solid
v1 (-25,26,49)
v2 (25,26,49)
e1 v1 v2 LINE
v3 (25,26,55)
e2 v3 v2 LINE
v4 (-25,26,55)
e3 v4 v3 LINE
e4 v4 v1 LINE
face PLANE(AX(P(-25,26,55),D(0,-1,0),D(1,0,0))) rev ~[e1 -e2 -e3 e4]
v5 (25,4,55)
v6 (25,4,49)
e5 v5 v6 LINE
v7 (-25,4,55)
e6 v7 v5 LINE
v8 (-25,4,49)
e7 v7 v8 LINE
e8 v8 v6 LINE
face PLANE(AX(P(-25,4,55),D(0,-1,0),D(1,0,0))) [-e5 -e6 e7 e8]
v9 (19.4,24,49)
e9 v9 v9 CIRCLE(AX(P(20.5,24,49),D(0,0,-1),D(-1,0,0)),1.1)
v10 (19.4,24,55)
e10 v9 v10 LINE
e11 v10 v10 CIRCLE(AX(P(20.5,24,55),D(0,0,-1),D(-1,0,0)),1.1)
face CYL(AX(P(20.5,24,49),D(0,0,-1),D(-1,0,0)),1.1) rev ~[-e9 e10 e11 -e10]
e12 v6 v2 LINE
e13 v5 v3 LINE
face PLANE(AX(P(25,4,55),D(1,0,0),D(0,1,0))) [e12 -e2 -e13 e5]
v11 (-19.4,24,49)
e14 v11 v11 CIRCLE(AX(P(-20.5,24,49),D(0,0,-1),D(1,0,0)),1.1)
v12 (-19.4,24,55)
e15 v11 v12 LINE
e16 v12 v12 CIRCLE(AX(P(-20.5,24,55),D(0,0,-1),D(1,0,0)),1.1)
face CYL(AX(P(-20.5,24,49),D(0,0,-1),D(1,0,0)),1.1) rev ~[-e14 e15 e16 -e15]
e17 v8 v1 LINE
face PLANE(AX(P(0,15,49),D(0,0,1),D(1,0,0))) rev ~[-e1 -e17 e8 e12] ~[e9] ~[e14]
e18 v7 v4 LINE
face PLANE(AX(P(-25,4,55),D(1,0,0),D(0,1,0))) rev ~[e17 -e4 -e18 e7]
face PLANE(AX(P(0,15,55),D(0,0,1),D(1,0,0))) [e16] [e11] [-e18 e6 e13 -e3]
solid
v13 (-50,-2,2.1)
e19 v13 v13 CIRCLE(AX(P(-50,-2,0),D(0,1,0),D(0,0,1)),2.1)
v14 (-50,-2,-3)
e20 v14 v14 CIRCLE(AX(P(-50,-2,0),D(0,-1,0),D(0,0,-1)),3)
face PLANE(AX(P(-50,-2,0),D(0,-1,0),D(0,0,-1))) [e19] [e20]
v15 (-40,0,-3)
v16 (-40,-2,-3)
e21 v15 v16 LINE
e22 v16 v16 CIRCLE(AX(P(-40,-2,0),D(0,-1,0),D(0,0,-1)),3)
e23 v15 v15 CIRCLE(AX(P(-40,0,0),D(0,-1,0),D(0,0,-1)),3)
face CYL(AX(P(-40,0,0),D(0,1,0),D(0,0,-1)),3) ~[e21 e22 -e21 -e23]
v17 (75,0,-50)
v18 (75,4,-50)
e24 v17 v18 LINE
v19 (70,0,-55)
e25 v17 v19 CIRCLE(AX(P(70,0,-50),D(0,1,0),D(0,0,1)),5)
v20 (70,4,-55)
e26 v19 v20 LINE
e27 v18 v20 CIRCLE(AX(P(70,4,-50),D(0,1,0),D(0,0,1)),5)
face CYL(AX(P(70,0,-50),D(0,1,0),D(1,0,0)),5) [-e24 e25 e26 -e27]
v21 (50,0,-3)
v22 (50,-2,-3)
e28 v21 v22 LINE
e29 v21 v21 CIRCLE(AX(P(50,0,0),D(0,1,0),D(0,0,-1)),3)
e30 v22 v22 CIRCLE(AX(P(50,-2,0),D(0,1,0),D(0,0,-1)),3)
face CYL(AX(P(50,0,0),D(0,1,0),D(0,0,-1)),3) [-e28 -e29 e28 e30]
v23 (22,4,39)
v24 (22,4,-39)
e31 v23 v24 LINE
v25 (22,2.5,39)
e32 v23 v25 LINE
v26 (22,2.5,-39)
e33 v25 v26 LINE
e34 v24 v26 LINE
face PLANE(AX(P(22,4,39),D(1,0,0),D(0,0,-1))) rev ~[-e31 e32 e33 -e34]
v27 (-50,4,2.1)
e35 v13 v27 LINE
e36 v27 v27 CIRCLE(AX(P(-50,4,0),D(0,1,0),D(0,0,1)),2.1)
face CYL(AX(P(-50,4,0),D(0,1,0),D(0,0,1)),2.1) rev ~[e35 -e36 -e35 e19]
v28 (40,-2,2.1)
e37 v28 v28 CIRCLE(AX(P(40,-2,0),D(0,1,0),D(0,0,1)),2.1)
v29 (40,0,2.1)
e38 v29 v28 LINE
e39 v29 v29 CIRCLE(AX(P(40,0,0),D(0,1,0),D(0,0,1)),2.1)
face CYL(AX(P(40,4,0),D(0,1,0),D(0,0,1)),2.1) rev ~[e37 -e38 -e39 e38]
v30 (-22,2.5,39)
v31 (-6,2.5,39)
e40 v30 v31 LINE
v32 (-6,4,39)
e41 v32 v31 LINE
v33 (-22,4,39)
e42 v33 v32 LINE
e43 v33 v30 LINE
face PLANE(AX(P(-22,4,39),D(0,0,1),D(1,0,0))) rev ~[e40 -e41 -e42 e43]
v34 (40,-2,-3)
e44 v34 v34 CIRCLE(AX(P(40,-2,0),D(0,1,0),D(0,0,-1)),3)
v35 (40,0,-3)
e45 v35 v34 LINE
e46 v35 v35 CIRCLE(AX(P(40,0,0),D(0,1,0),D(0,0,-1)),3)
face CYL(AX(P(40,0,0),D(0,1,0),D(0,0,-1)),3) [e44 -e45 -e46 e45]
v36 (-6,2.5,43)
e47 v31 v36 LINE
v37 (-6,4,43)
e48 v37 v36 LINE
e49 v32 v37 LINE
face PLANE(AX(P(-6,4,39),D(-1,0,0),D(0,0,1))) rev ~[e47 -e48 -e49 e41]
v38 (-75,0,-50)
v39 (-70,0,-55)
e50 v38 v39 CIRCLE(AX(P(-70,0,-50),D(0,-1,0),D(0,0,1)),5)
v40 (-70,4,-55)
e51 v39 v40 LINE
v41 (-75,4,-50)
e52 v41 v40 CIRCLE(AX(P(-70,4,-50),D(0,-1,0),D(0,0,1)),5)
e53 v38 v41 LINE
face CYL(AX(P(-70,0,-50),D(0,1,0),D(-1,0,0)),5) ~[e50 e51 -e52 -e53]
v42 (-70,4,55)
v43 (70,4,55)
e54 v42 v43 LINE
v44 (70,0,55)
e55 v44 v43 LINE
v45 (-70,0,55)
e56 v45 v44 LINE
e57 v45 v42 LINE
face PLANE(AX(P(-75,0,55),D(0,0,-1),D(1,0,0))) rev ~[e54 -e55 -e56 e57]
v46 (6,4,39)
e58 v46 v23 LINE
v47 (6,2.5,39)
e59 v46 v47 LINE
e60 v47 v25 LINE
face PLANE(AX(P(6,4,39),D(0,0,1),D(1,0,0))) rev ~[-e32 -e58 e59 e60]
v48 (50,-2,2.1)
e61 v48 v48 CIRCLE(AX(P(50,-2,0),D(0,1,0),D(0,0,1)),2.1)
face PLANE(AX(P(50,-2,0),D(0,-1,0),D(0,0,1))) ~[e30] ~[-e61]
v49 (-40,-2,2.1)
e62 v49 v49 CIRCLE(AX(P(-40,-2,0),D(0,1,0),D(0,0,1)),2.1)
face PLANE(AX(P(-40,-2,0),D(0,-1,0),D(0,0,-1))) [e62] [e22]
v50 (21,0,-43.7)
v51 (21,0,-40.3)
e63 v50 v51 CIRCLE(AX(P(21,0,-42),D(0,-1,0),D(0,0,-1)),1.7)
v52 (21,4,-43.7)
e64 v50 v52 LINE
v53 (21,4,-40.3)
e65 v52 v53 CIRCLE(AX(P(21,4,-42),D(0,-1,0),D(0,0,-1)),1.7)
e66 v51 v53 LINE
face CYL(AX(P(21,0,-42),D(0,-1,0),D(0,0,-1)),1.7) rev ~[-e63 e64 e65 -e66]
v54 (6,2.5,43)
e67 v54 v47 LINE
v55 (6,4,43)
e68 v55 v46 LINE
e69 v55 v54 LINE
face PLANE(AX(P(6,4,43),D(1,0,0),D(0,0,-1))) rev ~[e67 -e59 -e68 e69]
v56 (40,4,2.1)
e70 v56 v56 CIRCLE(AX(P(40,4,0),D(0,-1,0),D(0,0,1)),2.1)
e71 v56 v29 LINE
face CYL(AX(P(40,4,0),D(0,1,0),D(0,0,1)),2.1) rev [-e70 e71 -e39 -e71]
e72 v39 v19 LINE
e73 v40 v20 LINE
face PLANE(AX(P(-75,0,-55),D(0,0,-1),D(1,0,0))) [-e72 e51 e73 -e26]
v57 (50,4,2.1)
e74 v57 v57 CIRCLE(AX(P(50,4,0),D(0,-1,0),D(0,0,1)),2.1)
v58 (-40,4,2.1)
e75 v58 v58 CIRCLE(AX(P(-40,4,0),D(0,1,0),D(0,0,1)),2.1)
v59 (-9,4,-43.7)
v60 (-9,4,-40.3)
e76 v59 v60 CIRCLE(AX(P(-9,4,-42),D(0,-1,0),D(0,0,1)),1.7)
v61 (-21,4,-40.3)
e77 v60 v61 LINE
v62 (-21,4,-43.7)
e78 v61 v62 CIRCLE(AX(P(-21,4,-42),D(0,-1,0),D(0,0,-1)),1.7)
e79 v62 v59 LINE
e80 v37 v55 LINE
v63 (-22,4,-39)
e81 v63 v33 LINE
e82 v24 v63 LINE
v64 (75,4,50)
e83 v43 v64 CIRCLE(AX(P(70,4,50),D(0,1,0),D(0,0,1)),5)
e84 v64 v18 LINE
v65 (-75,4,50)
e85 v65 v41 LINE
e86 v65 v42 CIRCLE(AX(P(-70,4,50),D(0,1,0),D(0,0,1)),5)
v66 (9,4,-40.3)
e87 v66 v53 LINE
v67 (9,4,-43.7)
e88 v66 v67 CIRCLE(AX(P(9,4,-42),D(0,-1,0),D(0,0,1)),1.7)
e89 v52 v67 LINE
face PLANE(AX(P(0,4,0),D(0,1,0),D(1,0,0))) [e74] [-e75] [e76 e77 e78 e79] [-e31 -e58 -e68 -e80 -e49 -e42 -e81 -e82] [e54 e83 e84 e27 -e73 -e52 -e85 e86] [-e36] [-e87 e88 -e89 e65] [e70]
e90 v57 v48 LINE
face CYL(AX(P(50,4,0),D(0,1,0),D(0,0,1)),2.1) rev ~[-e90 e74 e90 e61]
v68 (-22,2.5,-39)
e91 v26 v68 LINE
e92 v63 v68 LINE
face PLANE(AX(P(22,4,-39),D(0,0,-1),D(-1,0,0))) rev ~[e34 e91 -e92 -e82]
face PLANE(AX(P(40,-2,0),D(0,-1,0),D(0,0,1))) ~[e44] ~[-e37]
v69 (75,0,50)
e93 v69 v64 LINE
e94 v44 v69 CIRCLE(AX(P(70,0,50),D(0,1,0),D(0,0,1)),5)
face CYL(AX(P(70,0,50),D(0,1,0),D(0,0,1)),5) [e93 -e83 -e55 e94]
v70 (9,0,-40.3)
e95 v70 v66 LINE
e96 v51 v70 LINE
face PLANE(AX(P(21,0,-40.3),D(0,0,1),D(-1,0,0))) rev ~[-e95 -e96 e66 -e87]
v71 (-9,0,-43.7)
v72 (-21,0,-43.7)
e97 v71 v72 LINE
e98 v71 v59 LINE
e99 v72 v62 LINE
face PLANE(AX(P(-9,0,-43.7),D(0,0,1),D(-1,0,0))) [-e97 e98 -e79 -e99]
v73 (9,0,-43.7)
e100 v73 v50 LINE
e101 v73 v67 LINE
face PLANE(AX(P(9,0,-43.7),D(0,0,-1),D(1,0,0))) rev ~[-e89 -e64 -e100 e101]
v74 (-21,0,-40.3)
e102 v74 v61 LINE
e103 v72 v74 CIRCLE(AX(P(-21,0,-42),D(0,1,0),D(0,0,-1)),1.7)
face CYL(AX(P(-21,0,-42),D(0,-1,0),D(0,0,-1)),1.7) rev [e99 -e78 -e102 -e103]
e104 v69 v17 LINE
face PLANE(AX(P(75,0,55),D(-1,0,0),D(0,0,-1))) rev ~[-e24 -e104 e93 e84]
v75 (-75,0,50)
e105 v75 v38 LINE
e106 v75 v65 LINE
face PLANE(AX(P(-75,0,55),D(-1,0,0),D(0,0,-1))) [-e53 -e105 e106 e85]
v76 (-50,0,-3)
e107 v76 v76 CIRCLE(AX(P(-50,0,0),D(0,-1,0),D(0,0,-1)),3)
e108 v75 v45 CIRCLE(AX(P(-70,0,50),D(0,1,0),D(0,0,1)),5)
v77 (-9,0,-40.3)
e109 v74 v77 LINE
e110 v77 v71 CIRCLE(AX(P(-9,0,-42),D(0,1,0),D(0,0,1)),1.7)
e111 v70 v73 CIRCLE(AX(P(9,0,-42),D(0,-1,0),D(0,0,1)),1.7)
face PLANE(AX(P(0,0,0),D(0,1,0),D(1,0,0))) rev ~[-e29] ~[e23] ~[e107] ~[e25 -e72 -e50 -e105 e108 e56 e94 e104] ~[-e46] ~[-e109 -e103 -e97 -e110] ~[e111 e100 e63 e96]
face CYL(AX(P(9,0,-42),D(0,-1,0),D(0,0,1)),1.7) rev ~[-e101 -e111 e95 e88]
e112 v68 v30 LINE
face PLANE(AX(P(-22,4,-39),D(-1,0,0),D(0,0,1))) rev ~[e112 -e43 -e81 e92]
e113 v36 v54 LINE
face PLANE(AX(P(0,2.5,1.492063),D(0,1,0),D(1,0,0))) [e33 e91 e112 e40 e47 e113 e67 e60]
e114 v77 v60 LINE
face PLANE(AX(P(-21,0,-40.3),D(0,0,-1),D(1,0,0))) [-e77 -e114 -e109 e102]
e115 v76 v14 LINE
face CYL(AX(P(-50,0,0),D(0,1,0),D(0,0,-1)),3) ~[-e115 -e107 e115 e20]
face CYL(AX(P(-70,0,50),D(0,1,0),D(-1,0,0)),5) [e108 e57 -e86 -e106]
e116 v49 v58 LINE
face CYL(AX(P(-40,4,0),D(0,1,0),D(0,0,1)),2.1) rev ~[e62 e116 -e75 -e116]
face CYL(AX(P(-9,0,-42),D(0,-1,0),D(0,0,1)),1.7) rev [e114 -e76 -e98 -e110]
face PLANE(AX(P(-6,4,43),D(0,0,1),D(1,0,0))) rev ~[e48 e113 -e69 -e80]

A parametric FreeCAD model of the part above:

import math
import FreeCAD as App
import Part
import Sketcher
Q = App.Units.Quantity


def edges_at(feature, points):
    """Names of the edges that pass closest to the given points."""
    edges = feature.Shape.Edges
    near = lambda p: min(range(len(edges)), key=lambda i: edges[i].distToShape(Part.Vertex(*p))[0])
    return sorted({f"Edge{near(p) + 1}" for p in points})

doc = App.newDocument("Part")
body = doc.addObject("PartDesign::Body", "Body")

# Sketch on XZ plane
sketch1 = body.newObject("Sketcher::SketchObject", "Sketch")
sketch1.AttachmentSupport = (doc.getObject("XZ_Plane"), [""])
sketch1.MapMode = "FlatFace"
sketch1.addGeometry([
    Part.LineSegment(App.Vector(-75, -55, 0), App.Vector(-75, 55, 0)),
    Part.LineSegment(App.Vector(-75, 55, 0), App.Vector(75, 55, 0)),
    Part.LineSegment(App.Vector(75, 55, 0), App.Vector(75, -55, 0)),
    Part.LineSegment(App.Vector(75, -55, 0), App.Vector(-75, -55, 0)),
], False)
sketch1.addConstraint([
    Sketcher.Constraint("Coincident", 0, 2, 1, 1),
    Sketcher.Constraint("Coincident", 1, 2, 2, 1),
    Sketcher.Constraint("Coincident", 2, 2, 3, 1),
    Sketcher.Constraint("Coincident", 3, 2, 0, 1),
    Sketcher.Constraint("Vertical", 0),
    Sketcher.Constraint("Horizontal", 1),
    Sketcher.Constraint("Vertical", 2),
    Sketcher.Constraint("Horizontal", 3),
    Sketcher.Constraint("Symmetric", 0, 2, 2, 2, -1, 1),
    Sketcher.Constraint("DistanceX", 1, 1, 1, 2, Q("150 mm")),
    Sketcher.Constraint("DistanceY", 0, 1, 0, 2, Q("110 mm")),
])
pad1 = body.newObject("PartDesign::Pad", "Pad")
pad1.Profile = sketch1
pad1.Length = 4
pad1.Reversed = True
doc.recompute()

fillet = body.newObject("PartDesign::Fillet", "Fillet")
fillet.Base = (pad1, edges_at(pad1, [
    (75, 2, 55),
    (-75, 2, 55),
    (-75, 2, -55),
    (75, 2, -55),
]))
fillet.Radius = 5

# Sketch on XZ plane
sketch2 = body.newObject("Sketcher::SketchObject", "Sketch001")
sketch2.AttachmentSupport = (doc.getObject("XZ_Plane"), [""])
sketch2.MapMode = "FlatFace"
sketch2.AttachmentOffset = App.Placement(App.Vector(0, 0, -4), App.Rotation())
sketch2.addGeometry([
    Part.Circle(App.Vector(-50, 0, 0), App.Vector(0, 0, 1), 2.1),
    Part.Circle(App.Vector(-40, 0, 0), App.Vector(0, 0, 1), 2.1),
], False)
sketch2.addConstraint([
    Sketcher.Constraint("Equal", 0, 1),
    Sketcher.Constraint("PointOnObject", 0, 3, -1),
    Sketcher.Constraint("PointOnObject", 1, 3, -1),
    Sketcher.Constraint("Diameter", 0, Q("4.2 mm")),
    Sketcher.Constraint("DistanceX", 0, 3, -1, 1, Q("50 mm")),
    Sketcher.Constraint("DistanceX", 1, 3, -1, 1, Q("40 mm")),
])
pocket1 = body.newObject("PartDesign::Pocket", "Pocket")
pocket1.Profile = sketch2
pocket1.Type = "ThroughAll"
pocket1.Reversed = True

# Sketch on XZ plane
sketch3 = body.newObject("Sketcher::SketchObject", "Sketch002")
sketch3.AttachmentSupport = (doc.getObject("XZ_Plane"), [""])
sketch3.MapMode = "FlatFace"
sketch3.addGeometry([
    Part.Circle(App.Vector(-50, 0, 0), App.Vector(0, 0, 1), 3),
    Part.Circle(App.Vector(-40, 0, 0), App.Vector(0, 0, 1), 3),
], False)
sketch3.addConstraint([
    Sketcher.Constraint("Equal", 0, 1),
    Sketcher.Constraint("PointOnObject", 0, 3, -1),
    Sketcher.Constraint("PointOnObject", 1, 3, -1),
    Sketcher.Constraint("Diameter", 0, Q("6 mm")),
    Sketcher.Constraint("DistanceX", 0, 3, -1, 1, Q("50 mm")),
    Sketcher.Constraint("DistanceX", 1, 3, -1, 1, Q("40 mm")),
])
pad2 = body.newObject("PartDesign::Pad", "Pad001")
pad2.Profile = sketch3
pad2.Length = 2
doc.recompute()

mirrored = body.newObject("PartDesign::Mirrored", "Mirrored")
mirrored.Originals = [pocket1, pad2]
mirrored.MirrorPlane = (doc.getObject("YZ_Plane"), [""])
body.Tip = mirrored

# Sketch on XZ plane
sketch4 = body.newObject("Sketcher::SketchObject", "Sketch003")
sketch4.AttachmentSupport = (doc.getObject("XZ_Plane"), [""])
sketch4.MapMode = "FlatFace"
sketch4.AttachmentOffset = App.Placement(App.Vector(0, 0, -4), App.Rotation())
sketch4.addGeometry([
    Part.LineSegment(App.Vector(-22, 39, 0), App.Vector(-6, 39, 0)),  # 0
    Part.LineSegment(App.Vector(-6, 39, 0), App.Vector(-6, 43, 0)),  # 1
    Part.LineSegment(App.Vector(-6, 43, 0), App.Vector(6, 43, 0)),  # 2
    Part.LineSegment(App.Vector(6, 43, 0), App.Vector(6, 39, 0)),  # 3
    Part.LineSegment(App.Vector(6, 39, 0), App.Vector(22, 39, 0)),  # 4
    Part.LineSegment(App.Vector(22, 39, 0), App.Vector(22, -39, 0)),  # 5
    Part.LineSegment(App.Vector(22, -39, 0), App.Vector(-22, -39, 0)),  # 6
    Part.LineSegment(App.Vector(-22, -39, 0), App.Vector(-22, 39, 0)),  # 7
], False)
sketch4.addConstraint([
    Sketcher.Constraint("Coincident", 0, 2, 1, 1),
    Sketcher.Constraint("Coincident", 1, 2, 2, 1),
    Sketcher.Constraint("Coincident", 2, 2, 3, 1),
    Sketcher.Constraint("Coincident", 3, 2, 4, 1),
    Sketcher.Constraint("Coincident", 4, 2, 5, 1),
    Sketcher.Constraint("Coincident", 5, 2, 6, 1),
    Sketcher.Constraint("Coincident", 6, 2, 7, 1),
    Sketcher.Constraint("Coincident", 7, 2, 0, 1),
    Sketcher.Constraint("Horizontal", 0),
    Sketcher.Constraint("Vertical", 1),
    Sketcher.Constraint("Horizontal", 2),
    Sketcher.Constraint("Vertical", 3),
    Sketcher.Constraint("Horizontal", 4),
    Sketcher.Constraint("Vertical", 5),
    Sketcher.Constraint("Horizontal", 6),
    Sketcher.Constraint("Vertical", 7),
    Sketcher.Constraint("Symmetric", 4, 2, 6, 2, -1, 1),
    Sketcher.Constraint("Symmetric", 0, 2, 3, 2, -2),
    Sketcher.Constraint("DistanceX", 0, 1, 0, 2, Q("16 mm")),
    Sketcher.Constraint("DistanceX", 2, 1, 2, 2, Q("12 mm")),
    Sketcher.Constraint("DistanceY", 1, 1, 1, 2, Q("4 mm")),
    Sketcher.Constraint("DistanceY", 5, 2, 5, 1, Q("78 mm")),
])
pocket2 = body.newObject("PartDesign::Pocket", "Pocket001")
pocket2.Profile = sketch4
pocket2.Length = 1.5
pocket2.Reversed = True

# Sketch on XZ plane
sketch5 = body.newObject("Sketcher::SketchObject", "Sketch004")
sketch5.AttachmentSupport = (doc.getObject("XZ_Plane"), [""])
sketch5.MapMode = "FlatFace"
sketch5.addGeometry([
    Part.LineSegment(App.Vector(-9, -40.3, 0), App.Vector(-21, -40.3, 0)),  # 0
    Part.ArcOfCircle(Part.Circle(App.Vector(-21, -42, 0), App.Vector(0, 0, 1), 1.7), math.radians(90), math.radians(270)),  # 1
    Part.LineSegment(App.Vector(-21, -43.7, 0), App.Vector(-9, -43.7, 0)),  # 2
    Part.ArcOfCircle(Part.Circle(App.Vector(-9, -42, 0), App.Vector(0, 0, 1), 1.7), math.radians(-90), math.radians(90)),  # 3
    Part.LineSegment(App.Vector(21, -40.3, 0), App.Vector(9, -40.3, 0)),  # 4
    Part.ArcOfCircle(Part.Circle(App.Vector(9, -42, 0), App.Vector(0, 0, 1), 1.7), math.radians(90), math.radians(270)),  # 5
    Part.LineSegment(App.Vector(9, -43.7, 0), App.Vector(21, -43.7, 0)),  # 6
    Part.ArcOfCircle(Part.Circle(App.Vector(21, -42, 0), App.Vector(0, 0, 1), 1.7), math.radians(-90), math.radians(90)),  # 7
], False)
sketch5.addConstraint([
    Sketcher.Constraint("Tangent", 0, 2, 1, 1),
    Sketcher.Constraint("Tangent", 1, 2, 2, 1),
    Sketcher.Constraint("Tangent", 2, 2, 3, 1),
    Sketcher.Constraint("Tangent", 3, 2, 0, 1),
    Sketcher.Constraint("Tangent", 4, 2, 5, 1),
    Sketcher.Constraint("Tangent", 5, 2, 6, 1),
    Sketcher.Constraint("Tangent", 6, 2, 7, 1),
    Sketcher.Constraint("Tangent", 7, 2, 4, 1),
    Sketcher.Constraint("Horizontal", 0),
    Sketcher.Constraint("Horizontal", 2),
    Sketcher.Constraint("Horizontal", 4),
    Sketcher.Constraint("Horizontal", 6),
    Sketcher.Constraint("Equal", 3, 5),
    Sketcher.Constraint("Symmetric", 3, 3, 5, 3, -2),
    Sketcher.Constraint("Equal", 2, 4),
    Sketcher.Constraint("Radius", 1, Q("1.7 mm")),
    Sketcher.Constraint("DistanceX", 0, 2, 0, 1, Q("12 mm")),
    Sketcher.Constraint("DistanceX", 1, 3, -1, 1, Q("21 mm")),
    Sketcher.Constraint("DistanceY", 1, 3, -1, 1, Q("42 mm")),
])
pocket3 = body.newObject("PartDesign::Pocket", "Pocket002")
pocket3.Profile = sketch5
pocket3.Type = "ThroughAll"

# Sketch on XZ plane
sketch6 = body.newObject("Sketcher::SketchObject", "Sketch005")
sketch6.AttachmentSupport = (doc.getObject("XZ_Plane"), [""])
sketch6.MapMode = "FlatFace"
sketch6.AttachmentOffset = App.Placement(App.Vector(0, 0, -4), App.Rotation())
sketch6.addGeometry([
    Part.Circle(App.Vector(-50, 0, 0), App.Vector(0, 0, 1), 2.1),
    Part.Circle(App.Vector(-40, 0, 0), App.Vector(0, 0, 1), 2.1),
    Part.Circle(App.Vector(40, 0, 0), App.Vector(0, 0, 1), 2.1),
    Part.Circle(App.Vector(50, 0, 0), App.Vector(0, 0, 1), 2.1),
], False)
sketch6.addConstraint([
    Sketcher.Constraint("Equal", 0, 1),
    Sketcher.Constraint("Equal", 1, 2),
    Sketcher.Constraint("Equal", 2, 3),
    Sketcher.Constraint("Symmetric", 1, 3, 2, 3, -1, 1),
    Sketcher.Constraint("Symmetric", 0, 3, 3, 3, -1, 1),
    Sketcher.Constraint("PointOnObject", 0, 3, -1),
    Sketcher.Constraint("PointOnObject", 1, 3, -1),
    Sketcher.Constraint("Diameter", 0, Q("4.2 mm")),
    Sketcher.Constraint("DistanceX", 0, 3, -1, 1, Q("50 mm")),
    Sketcher.Constraint("DistanceX", 1, 3, -1, 1, Q("40 mm")),
])
pocket4 = body.newObject("PartDesign::Pocket", "Pocket003")
pocket4.Profile = sketch6
pocket4.Type = "ThroughAll"
pocket4.Reversed = True
body2 = doc.addObject("PartDesign::Body", "Body001")

# Sketch on XY plane
sketch7 = body2.newObject("Sketcher::SketchObject", "Sketch006")
sketch7.AttachmentSupport = (doc.getObject("XY_Plane001"), [""])
sketch7.MapMode = "FlatFace"
sketch7.AttachmentOffset = App.Placement(App.Vector(0, 0, 55), App.Rotation())
sketch7.addGeometry([
    Part.LineSegment(App.Vector(-25, 26, 0), App.Vector(-25, 4, 0)),
    Part.LineSegment(App.Vector(-25, 4, 0), App.Vector(25, 4, 0)),
    Part.LineSegment(App.Vector(25, 4, 0), App.Vector(25, 26, 0)),
    Part.LineSegment(App.Vector(25, 26, 0), App.Vector(-25, 26, 0)),
], False)
sketch7.addConstraint([
    Sketcher.Constraint("Coincident", 0, 2, 1, 1),
    Sketcher.Constraint("Coincident", 1, 2, 2, 1),
    Sketcher.Constraint("Coincident", 2, 2, 3, 1),
    Sketcher.Constraint("Coincident", 3, 2, 0, 1),
    Sketcher.Constraint("Vertical", 0),
    Sketcher.Constraint("Horizontal", 1),
    Sketcher.Constraint("Vertical", 2),
    Sketcher.Constraint("Horizontal", 3),
    Sketcher.Constraint("DistanceX", 1, 1, 1, 2, Q("50 mm")),
    Sketcher.Constraint("DistanceY", 0, 2, 0, 1, Q("22 mm")),
    Sketcher.Constraint("DistanceX", 0, 2, -1, 1, Q("25 mm")),
    Sketcher.Constraint("DistanceY", -1, 1, 0, 2, Q("4 mm")),
])
pad3 = body2.newObject("PartDesign::Pad", "Pad002")
pad3.Profile = sketch7
pad3.Length = 6
pad3.Reversed = True

# Sketch on XY plane
sketch8 = body2.newObject("Sketcher::SketchObject", "Sketch007")
sketch8.AttachmentSupport = (doc.getObject("XY_Plane001"), [""])
sketch8.MapMode = "FlatFace"
sketch8.AttachmentOffset = App.Placement(App.Vector(0, 0, 49), App.Rotation())
sketch8.addGeometry([
    Part.Circle(App.Vector(20.5, 24, 0), App.Vector(0, 0, 1), 1.1),
    Part.Circle(App.Vector(-20.5, 24, 0), App.Vector(0, 0, 1), 1.1),
], False)
sketch8.addConstraint([
    Sketcher.Constraint("Equal", 0, 1),
    Sketcher.Constraint("Symmetric", 0, 3, 1, 3, -2),
    Sketcher.Constraint("Diameter", 0, Q("2.2 mm")),
    Sketcher.Constraint("DistanceY", -1, 1, 0, 3, Q("24 mm")),
    Sketcher.Constraint("DistanceX", 1, 3, 0, 3, Q("41 mm")),
])
pocket5 = body2.newObject("PartDesign::Pocket", "Pocket004")
pocket5.Profile = sketch8
pocket5.Type = "ThroughAll"
pocket5.Reversed = True

doc.recompute()
